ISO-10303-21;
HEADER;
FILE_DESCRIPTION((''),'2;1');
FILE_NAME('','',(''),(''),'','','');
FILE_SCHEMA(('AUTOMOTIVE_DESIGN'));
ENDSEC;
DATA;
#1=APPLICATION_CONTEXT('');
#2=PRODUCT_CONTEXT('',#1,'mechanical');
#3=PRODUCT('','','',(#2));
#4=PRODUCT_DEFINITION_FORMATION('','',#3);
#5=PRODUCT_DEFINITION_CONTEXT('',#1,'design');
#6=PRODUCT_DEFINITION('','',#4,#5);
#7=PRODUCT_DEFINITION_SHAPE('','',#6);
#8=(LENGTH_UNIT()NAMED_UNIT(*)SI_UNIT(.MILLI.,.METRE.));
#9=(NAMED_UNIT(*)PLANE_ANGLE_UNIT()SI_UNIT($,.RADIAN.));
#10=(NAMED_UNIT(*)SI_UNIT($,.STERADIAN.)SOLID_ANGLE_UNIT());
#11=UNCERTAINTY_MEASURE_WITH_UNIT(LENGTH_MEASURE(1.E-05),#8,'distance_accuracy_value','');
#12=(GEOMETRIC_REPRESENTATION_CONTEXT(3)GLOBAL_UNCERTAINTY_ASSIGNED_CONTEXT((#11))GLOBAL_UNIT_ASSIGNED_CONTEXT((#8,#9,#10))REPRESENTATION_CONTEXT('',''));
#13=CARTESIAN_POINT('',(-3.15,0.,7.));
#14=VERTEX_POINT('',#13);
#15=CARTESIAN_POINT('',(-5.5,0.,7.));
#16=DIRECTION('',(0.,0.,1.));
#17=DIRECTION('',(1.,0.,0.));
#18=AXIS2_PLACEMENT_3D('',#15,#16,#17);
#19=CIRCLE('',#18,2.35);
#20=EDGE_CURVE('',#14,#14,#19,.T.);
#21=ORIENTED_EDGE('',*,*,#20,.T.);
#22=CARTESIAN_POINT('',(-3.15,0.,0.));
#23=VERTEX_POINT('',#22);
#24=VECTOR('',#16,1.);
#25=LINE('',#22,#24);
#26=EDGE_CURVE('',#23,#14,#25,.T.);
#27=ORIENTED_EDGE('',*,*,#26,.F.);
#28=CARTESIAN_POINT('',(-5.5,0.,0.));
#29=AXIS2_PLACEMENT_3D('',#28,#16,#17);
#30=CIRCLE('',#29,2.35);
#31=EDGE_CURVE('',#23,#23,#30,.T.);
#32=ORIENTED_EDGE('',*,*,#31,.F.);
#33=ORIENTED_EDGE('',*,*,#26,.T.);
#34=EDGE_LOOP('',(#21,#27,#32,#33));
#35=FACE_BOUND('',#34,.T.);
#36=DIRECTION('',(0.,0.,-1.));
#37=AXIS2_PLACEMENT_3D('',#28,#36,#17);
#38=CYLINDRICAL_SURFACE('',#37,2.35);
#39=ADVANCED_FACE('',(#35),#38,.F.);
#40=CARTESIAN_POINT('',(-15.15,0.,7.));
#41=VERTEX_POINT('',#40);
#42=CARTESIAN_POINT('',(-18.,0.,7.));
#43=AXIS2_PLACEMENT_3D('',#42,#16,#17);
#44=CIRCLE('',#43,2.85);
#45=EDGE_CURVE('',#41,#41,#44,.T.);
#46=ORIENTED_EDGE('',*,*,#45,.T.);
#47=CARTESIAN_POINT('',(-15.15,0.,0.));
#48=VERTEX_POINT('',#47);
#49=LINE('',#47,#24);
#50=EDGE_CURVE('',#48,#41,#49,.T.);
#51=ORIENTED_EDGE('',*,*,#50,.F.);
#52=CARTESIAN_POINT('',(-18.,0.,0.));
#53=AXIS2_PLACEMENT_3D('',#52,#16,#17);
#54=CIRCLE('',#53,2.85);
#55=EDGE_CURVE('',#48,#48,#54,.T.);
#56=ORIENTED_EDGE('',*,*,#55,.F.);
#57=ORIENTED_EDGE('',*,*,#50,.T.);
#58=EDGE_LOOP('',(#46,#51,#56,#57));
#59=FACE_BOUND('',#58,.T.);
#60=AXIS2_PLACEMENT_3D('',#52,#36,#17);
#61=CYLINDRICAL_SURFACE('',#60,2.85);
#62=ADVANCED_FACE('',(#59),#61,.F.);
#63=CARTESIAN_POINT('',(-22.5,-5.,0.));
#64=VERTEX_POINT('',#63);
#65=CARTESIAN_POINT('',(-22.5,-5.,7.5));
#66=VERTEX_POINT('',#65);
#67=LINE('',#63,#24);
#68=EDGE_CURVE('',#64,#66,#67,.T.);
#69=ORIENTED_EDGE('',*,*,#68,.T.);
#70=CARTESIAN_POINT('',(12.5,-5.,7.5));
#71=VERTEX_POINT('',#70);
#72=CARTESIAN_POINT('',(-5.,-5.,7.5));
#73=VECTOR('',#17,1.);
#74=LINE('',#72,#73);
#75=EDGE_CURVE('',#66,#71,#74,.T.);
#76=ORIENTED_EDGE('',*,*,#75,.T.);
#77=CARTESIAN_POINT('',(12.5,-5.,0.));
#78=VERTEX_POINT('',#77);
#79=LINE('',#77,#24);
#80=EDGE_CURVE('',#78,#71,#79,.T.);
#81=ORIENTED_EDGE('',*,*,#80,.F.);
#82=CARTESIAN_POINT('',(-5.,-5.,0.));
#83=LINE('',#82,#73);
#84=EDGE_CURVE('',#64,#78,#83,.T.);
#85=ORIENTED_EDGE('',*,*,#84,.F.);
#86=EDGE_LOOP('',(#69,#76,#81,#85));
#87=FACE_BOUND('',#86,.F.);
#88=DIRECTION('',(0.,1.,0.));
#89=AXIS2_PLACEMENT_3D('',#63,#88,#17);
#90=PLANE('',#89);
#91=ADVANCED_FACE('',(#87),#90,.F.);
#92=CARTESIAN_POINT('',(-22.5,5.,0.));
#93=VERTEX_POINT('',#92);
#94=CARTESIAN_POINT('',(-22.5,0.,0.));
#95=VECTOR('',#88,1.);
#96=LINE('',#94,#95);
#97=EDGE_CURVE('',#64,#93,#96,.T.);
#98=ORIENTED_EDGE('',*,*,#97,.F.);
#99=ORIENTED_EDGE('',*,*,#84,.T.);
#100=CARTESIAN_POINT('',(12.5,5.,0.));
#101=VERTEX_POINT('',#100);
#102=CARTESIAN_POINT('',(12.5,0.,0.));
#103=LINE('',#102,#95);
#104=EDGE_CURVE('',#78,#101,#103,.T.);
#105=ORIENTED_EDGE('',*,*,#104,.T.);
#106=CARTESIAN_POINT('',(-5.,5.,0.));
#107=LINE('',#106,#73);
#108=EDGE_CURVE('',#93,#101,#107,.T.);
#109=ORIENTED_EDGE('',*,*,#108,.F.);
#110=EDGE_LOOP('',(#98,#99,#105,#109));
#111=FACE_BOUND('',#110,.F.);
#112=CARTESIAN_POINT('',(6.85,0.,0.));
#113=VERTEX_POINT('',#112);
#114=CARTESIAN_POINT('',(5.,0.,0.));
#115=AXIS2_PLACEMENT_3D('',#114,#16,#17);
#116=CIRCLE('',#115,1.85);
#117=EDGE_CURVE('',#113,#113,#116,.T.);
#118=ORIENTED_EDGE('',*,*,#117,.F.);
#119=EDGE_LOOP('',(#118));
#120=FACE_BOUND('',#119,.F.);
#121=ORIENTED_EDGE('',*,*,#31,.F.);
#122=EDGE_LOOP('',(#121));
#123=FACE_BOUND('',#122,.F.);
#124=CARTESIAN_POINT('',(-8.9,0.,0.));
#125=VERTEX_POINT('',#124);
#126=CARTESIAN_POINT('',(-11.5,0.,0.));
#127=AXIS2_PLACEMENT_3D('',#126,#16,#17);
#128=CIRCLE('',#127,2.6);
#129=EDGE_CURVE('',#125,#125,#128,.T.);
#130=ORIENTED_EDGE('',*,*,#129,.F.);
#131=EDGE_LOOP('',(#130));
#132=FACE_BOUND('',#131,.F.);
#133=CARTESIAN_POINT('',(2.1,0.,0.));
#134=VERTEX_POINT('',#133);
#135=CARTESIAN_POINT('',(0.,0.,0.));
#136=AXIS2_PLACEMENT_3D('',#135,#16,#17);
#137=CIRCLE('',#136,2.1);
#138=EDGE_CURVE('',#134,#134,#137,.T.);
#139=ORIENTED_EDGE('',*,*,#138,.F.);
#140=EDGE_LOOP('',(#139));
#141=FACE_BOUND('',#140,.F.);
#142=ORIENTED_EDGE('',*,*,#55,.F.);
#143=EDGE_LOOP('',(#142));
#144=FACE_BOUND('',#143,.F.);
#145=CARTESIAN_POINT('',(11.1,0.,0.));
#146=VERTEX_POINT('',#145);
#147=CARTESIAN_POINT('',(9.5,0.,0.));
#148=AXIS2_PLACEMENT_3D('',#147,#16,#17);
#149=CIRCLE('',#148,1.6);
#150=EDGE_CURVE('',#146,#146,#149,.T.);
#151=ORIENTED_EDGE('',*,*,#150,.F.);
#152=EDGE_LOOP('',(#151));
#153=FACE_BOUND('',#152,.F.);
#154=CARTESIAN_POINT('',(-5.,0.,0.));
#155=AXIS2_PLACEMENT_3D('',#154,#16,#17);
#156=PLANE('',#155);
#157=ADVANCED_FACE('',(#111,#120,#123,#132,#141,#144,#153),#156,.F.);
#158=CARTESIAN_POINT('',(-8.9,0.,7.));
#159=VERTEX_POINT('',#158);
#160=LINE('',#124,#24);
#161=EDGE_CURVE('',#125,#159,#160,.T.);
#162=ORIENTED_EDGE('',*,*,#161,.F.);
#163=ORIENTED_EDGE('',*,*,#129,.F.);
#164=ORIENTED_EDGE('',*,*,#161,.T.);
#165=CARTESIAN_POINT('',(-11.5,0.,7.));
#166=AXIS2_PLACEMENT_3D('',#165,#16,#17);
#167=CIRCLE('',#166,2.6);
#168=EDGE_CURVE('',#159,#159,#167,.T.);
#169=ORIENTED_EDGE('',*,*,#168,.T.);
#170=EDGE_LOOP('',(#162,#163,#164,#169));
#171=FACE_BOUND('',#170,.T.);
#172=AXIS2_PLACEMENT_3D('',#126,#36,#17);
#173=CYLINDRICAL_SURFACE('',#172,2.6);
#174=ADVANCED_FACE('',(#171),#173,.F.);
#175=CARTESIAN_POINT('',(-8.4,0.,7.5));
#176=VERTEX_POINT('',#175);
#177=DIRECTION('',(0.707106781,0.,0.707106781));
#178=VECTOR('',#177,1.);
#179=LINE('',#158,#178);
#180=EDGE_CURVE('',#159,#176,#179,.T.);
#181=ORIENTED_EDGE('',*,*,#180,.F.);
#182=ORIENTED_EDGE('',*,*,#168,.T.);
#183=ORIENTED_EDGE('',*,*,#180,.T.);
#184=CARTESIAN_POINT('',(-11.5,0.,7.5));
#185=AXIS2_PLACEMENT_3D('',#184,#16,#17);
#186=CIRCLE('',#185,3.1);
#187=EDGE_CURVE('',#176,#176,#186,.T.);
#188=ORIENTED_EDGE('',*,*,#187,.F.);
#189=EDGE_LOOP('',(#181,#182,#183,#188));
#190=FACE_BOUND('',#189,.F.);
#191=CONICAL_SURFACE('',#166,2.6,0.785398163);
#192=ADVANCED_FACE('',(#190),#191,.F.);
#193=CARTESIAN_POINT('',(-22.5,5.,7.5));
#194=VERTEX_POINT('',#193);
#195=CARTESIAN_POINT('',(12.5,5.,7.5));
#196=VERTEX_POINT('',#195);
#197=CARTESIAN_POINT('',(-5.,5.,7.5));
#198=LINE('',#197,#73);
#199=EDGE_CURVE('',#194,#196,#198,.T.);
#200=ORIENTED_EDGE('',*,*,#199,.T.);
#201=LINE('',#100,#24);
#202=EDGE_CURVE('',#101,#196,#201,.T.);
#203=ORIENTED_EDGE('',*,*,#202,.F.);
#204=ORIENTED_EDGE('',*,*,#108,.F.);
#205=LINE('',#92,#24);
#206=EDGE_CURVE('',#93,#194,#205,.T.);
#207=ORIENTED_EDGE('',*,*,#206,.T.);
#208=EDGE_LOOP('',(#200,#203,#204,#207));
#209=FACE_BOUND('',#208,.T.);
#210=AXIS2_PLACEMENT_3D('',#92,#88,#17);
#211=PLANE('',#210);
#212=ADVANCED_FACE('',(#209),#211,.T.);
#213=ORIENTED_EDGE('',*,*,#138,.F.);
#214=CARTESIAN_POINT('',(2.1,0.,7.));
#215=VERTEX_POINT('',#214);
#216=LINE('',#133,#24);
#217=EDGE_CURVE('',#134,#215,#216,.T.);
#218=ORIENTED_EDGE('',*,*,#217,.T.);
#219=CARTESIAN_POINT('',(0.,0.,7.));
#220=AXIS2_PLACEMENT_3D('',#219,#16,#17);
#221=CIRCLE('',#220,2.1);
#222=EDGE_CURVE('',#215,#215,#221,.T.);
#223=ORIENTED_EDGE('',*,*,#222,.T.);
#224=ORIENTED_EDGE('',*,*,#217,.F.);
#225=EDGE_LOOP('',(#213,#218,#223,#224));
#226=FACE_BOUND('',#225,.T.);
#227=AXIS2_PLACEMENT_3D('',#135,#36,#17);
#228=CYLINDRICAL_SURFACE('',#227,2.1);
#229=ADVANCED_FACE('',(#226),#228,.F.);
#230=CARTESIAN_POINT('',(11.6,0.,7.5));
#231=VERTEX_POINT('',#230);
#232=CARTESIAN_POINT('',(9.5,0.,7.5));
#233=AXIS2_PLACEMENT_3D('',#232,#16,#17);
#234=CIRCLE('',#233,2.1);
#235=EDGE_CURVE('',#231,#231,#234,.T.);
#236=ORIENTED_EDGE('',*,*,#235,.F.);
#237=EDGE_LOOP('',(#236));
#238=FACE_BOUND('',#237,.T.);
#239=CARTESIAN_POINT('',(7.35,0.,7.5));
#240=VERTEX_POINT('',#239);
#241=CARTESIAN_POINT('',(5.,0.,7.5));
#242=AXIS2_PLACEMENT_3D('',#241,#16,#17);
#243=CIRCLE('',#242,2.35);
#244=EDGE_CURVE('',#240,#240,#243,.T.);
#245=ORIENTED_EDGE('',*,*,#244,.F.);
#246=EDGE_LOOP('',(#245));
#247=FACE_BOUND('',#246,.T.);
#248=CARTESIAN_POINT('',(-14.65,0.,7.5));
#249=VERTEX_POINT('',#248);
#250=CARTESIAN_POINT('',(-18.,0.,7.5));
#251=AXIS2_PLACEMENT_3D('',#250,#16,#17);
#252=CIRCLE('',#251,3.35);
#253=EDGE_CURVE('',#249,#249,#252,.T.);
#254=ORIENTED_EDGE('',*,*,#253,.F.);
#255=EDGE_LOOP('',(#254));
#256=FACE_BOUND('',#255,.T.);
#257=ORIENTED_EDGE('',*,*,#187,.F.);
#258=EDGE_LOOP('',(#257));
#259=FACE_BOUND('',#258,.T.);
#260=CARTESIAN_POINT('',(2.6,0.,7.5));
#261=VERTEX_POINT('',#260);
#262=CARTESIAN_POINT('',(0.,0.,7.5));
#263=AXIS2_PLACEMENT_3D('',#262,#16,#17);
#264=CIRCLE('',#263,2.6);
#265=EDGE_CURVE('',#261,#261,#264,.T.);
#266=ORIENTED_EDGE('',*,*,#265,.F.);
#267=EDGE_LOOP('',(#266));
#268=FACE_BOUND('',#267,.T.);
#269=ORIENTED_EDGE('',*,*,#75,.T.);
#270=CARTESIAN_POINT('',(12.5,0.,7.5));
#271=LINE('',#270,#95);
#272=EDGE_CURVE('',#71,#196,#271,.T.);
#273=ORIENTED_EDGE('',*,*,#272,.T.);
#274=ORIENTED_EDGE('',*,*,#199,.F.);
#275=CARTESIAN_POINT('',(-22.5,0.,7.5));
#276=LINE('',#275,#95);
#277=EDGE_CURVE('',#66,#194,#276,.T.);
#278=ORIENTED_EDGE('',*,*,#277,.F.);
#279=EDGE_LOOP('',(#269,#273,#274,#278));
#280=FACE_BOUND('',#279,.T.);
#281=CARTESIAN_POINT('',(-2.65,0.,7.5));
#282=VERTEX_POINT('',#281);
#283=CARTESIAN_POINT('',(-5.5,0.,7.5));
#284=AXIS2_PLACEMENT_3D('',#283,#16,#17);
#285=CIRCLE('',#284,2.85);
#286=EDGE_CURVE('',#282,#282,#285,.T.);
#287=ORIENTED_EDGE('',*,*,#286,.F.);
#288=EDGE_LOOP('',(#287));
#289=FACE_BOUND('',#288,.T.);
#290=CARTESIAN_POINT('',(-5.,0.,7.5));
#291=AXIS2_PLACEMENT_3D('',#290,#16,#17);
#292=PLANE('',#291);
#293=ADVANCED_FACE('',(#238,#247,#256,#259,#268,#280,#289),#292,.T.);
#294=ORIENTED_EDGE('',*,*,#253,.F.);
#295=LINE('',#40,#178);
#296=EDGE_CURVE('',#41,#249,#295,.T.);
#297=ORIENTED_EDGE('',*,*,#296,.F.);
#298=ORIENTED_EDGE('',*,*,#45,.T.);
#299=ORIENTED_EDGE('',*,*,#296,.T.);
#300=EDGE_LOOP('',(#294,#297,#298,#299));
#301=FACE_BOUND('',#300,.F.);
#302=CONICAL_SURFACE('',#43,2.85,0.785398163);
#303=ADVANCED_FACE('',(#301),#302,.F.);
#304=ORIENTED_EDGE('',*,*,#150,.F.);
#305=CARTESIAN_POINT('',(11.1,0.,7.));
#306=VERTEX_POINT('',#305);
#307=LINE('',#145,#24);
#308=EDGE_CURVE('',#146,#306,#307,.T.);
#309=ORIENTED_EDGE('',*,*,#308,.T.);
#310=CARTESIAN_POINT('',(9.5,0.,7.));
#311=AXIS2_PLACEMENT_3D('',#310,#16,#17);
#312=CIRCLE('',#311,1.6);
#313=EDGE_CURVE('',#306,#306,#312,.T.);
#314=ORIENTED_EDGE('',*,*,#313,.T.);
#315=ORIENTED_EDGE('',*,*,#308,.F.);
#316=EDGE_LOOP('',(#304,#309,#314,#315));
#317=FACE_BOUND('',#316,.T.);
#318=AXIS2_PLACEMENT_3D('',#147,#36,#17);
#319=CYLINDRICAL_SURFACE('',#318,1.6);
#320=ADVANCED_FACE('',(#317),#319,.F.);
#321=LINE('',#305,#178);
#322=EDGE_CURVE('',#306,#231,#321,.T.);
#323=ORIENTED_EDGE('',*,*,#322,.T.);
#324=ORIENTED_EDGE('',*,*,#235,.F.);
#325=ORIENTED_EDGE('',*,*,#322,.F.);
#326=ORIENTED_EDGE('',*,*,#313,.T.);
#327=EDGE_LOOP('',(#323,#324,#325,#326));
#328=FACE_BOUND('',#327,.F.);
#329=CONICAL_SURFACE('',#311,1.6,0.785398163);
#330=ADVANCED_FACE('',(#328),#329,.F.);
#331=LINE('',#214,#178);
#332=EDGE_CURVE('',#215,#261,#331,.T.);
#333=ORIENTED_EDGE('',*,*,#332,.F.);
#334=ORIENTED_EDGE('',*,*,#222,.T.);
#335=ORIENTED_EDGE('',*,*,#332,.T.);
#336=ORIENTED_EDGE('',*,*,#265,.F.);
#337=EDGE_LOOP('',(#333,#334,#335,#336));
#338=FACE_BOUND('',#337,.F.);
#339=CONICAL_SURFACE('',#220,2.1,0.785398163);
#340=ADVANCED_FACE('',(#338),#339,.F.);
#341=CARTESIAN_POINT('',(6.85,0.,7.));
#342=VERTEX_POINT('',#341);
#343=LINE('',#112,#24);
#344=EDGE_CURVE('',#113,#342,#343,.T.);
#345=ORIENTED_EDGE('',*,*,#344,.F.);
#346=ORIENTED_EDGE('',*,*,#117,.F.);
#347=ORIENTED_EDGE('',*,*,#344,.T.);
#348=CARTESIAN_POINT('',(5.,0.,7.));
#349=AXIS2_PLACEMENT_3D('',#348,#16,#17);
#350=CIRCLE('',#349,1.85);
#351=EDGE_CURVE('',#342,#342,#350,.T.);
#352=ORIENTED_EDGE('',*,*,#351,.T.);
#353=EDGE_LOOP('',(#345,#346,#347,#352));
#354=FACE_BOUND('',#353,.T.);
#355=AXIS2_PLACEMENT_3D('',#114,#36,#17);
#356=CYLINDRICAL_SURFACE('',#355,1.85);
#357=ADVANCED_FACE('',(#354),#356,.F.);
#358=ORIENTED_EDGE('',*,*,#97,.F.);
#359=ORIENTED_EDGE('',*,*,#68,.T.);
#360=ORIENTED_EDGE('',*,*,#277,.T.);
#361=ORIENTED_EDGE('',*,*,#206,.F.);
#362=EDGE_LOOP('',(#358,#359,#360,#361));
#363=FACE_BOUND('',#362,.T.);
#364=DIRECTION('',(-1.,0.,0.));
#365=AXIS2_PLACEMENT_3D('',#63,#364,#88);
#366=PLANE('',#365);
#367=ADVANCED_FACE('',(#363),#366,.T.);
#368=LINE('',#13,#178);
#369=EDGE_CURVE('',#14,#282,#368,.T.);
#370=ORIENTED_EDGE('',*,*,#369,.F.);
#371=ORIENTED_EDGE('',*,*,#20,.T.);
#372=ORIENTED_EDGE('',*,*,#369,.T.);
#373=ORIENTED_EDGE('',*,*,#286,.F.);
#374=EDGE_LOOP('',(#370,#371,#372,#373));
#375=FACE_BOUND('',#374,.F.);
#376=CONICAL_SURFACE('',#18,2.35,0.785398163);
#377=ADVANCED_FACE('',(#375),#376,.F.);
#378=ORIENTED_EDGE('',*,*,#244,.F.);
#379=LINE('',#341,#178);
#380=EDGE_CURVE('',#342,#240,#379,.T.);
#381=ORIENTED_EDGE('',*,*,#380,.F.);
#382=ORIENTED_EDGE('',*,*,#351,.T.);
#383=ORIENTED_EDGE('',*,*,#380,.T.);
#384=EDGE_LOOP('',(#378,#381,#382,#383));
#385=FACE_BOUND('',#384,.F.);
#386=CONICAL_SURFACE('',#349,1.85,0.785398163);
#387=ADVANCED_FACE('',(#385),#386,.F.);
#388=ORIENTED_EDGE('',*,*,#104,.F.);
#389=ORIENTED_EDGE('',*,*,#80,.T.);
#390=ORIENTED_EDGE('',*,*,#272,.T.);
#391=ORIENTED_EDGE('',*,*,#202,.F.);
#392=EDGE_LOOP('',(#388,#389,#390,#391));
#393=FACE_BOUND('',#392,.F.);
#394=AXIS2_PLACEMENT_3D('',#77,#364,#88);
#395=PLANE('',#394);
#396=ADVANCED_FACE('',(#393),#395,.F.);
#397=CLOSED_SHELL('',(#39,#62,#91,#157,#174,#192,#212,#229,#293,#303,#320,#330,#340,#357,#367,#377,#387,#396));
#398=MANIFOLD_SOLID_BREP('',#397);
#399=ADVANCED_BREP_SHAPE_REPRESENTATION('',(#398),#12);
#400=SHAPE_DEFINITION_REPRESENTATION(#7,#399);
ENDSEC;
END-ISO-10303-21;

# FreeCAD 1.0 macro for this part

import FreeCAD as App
import Part
import Sketcher

V = App.Vector
Q = App.Units.Quantity


def edges_at(feature, points):
    """Names of the edges that pass closest to the given points."""
    edges = feature.Shape.Edges
    near = lambda p: min(range(len(edges)), key=lambda i: edges[i].distToShape(Part.Vertex(*p))[0])
    return sorted({f"Edge{near(p) + 1}" for p in points})


def add_polygon(sketch, points):
    """Adds a closed chain of lines whose ends are joined by coincident constraints."""
    first, n = sketch.GeometryCount, len(points)
    for a, b in zip(points, points[1:] + points[:1]):
        sketch.addGeometry(Part.LineSegment(App.Vector(*a, 0), App.Vector(*b, 0)), False)
    for i in range(n):
        sketch.addConstraint(Sketcher.Constraint("Coincident", first + i, 2, first + (i + 1) % n, 1))

doc = App.newDocument("Part")
body = doc.addObject("PartDesign::Body", "Body")

# Sketch on XY plane
sketch1 = body.newObject("Sketcher::SketchObject", "Sketch")
sketch1.AttachmentSupport = (doc.getObject("XY_Plane"), [""])
sketch1.MapMode = "FlatFace"
add_polygon(sketch1, [(-22.5, 5), (-22.5, -5), (12.5, -5), (12.5, 5)])  # lines 0-3
sketch1.addGeometry(Part.Circle(V(-18, 0, 0), V(0, 0, 1), 2.85), False)  # 4
sketch1.addGeometry(Part.Circle(V(-11.5, 0, 0), V(0, 0, 1), 2.6), False)  # 5
sketch1.addGeometry(Part.Circle(V(-5.5, 0, 0), V(0, 0, 1), 2.35), False)  # 6
sketch1.addGeometry(Part.Circle(V(0, 0, 0), V(0, 0, 1), 2.1), False)  # 7
sketch1.addGeometry(Part.Circle(V(5, 0, 0), V(0, 0, 1), 1.85), False)  # 8
sketch1.addGeometry(Part.Circle(V(9.5, 0, 0), V(0, 0, 1), 1.6), False)  # 9
sketch1.addConstraint(Sketcher.Constraint("Vertical", 0))
sketch1.addConstraint(Sketcher.Constraint("Horizontal", 1))
sketch1.addConstraint(Sketcher.Constraint("Vertical", 2))
sketch1.addConstraint(Sketcher.Constraint("Horizontal", 3))
sketch1.addConstraint(Sketcher.Constraint("Coincident", 7, 3, -1, 1))
sketch1.addConstraint(Sketcher.Constraint("PointOnObject", 4, 3, -1))
sketch1.addConstraint(Sketcher.Constraint("PointOnObject", 5, 3, -1))
sketch1.addConstraint(Sketcher.Constraint("PointOnObject", 6, 3, -1))
sketch1.addConstraint(Sketcher.Constraint("PointOnObject", 8, 3, -1))
sketch1.addConstraint(Sketcher.Constraint("PointOnObject", 9, 3, -1))
sketch1.addConstraint(Sketcher.Constraint("Diameter", 4, Q("5.7 mm")))
sketch1.addConstraint(Sketcher.Constraint("Diameter", 5, Q("5.2 mm")))
sketch1.addConstraint(Sketcher.Constraint("Diameter", 6, Q("4.7 mm")))
sketch1.addConstraint(Sketcher.Constraint("Diameter", 7, Q("4.2 mm")))
sketch1.addConstraint(Sketcher.Constraint("Diameter", 8, Q("3.7 mm")))
sketch1.addConstraint(Sketcher.Constraint("Diameter", 9, Q("3.2 mm")))
sketch1.addConstraint(Sketcher.Constraint("DistanceX", 1, 1, 1, 2, Q("35 mm")))
sketch1.addConstraint(Sketcher.Constraint("DistanceY", 0, 2, 0, 1, Q("10 mm")))
sketch1.addConstraint(Sketcher.Constraint("DistanceX", 4, 3, -1, 1, Q("18 mm")))
sketch1.addConstraint(Sketcher.Constraint("DistanceX", -1, 1, 8, 3, Q("5 mm")))
sketch1.addConstraint(Sketcher.Constraint("DistanceY", 0, 2, -1, 1, Q("5 mm")))
sketch1.addConstraint(Sketcher.Constraint("DistanceX", 5, 3, 6, 3, Q("6 mm")))
sketch1.addConstraint(Sketcher.Constraint("DistanceX", 6, 3, 9, 3, Q("15 mm")))
sketch1.addConstraint(Sketcher.Constraint("DistanceX", 0, 2, 5, 3, Q("11 mm")))
sketch1.addConstraint(Sketcher.Constraint("DistanceX", 5, 3, -1, 1, Q("11.5 mm")))
pad1 = body.newObject("PartDesign::Pad", "Pad")
pad1.Profile = sketch1
pad1.Length = 7.5
doc.recompute()

chamfer = body.newObject("PartDesign::Chamfer", "Chamfer")
chamfer.Base = (pad1, edges_at(pad1, [
    (-7.85, 0, 7.5),
    (-2.1, 0, 7.5),
    (3.15, 0, 7.5),
    (-14.1, 0, 7.5),
    (-20.85, 0, 7.5),
    (7.9, 0, 7.5),
]))
chamfer.Size = 0.5

doc.recompute()
